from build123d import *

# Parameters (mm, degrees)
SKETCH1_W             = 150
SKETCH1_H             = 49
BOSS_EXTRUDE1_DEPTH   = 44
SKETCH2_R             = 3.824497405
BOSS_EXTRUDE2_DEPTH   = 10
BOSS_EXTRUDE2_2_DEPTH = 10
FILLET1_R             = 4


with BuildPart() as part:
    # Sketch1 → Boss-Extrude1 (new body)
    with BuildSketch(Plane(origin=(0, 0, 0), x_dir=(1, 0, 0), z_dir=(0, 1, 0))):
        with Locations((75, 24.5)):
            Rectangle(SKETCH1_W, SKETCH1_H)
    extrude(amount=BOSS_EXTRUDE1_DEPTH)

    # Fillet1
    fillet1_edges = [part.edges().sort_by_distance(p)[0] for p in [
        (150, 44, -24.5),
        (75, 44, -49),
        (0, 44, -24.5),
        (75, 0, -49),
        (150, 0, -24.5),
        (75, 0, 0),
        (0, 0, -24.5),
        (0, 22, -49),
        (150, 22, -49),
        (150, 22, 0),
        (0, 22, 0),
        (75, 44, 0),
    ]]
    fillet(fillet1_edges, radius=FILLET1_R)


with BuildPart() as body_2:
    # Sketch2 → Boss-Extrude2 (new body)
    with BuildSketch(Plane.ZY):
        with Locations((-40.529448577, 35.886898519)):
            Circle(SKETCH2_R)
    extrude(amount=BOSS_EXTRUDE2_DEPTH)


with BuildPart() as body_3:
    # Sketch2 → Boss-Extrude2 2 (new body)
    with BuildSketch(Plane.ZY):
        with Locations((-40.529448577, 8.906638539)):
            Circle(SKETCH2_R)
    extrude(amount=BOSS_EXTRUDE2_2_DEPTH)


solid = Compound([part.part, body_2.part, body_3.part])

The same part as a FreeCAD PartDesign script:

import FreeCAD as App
import Part
import Sketcher

V = App.Vector

doc = App.newDocument("Part")
body = doc.addObject("PartDesign::Body", "Body")

sketch1 = body.newObject("Sketcher::SketchObject", "Sketch")
sketch1.AttachmentSupport = (doc.getObject("XZ_Plane"), [""])
sketch1.MapMode = "FlatFace"
sketch1.addGeometry(Part.LineSegment(V(0, -49, 0), V(0, 0, 0)), False)
sketch1.addGeometry(Part.LineSegment(V(0, 0, 0), V(150, 0, 0)), False)
sketch1.addGeometry(Part.LineSegment(V(150, 0, 0), V(150, -49, 0)), False)
sketch1.addGeometry(Part.LineSegment(V(150, -49, 0), V(0, -49, 0)), False)
sketch1.addConstraint(Sketcher.Constraint("Coincident", 0, 2, 1, 1))
sketch1.addConstraint(Sketcher.Constraint("Coincident", 1, 2, 2, 1))
sketch1.addConstraint(Sketcher.Constraint("Coincident", 2, 2, 3, 1))
sketch1.addConstraint(Sketcher.Constraint("Coincident", 3, 2, 0, 1))
sketch1.addConstraint(Sketcher.Constraint("Vertical", 0))
sketch1.addConstraint(Sketcher.Constraint("Horizontal", 1))
sketch1.addConstraint(Sketcher.Constraint("Vertical", 2))
sketch1.addConstraint(Sketcher.Constraint("Horizontal", 3))
sketch1.addConstraint(Sketcher.Constraint("Coincident", 0, 2, -1, 1))
sketch1.addConstraint(Sketcher.Constraint("DistanceX", 1, 1, 1, 2, 150.0))
sketch1.addConstraint(Sketcher.Constraint("DistanceY", 0, 1, 0, 2, 49.0))
pad1 = body.newObject("PartDesign::Pad", "Pad")
pad1.Profile = sketch1
pad1.Length = 44
pad1.Reversed = True
doc.recompute()

fillet = body.newObject("PartDesign::Fillet", "Fillet")
fillet.Base = (pad1, ["Edge1"])
fillet.UseAllEdges = True
fillet.Radius = 4
body2 = doc.addObject("PartDesign::Body", "Body001")

sketch2 = body2.newObject("Sketcher::SketchObject", "Sketch001")
sketch2.AttachmentSupport = (doc.getObject("YZ_Plane001"), [""])
sketch2.MapMode = "FlatFace"
sketch2.addGeometry(Part.Circle(V(35.886899, -40.529449, 0), V(0, 0, 1), 3.824497), False)
sketch2.addConstraint(Sketcher.Constraint("Diameter", 0, 7.648995))
sketch2.addConstraint(Sketcher.Constraint("DistanceX", -1, 1, 0, 3, 35.886899))
sketch2.addConstraint(Sketcher.Constraint("DistanceY", 0, 3, -1, 1, 40.529449))
pad2 = body2.newObject("PartDesign::Pad", "Pad001")
pad2.Profile = sketch2
pad2.Length = 10
pad2.Reversed = True
body3 = doc.addObject("PartDesign::Body", "Body002")

sketch3 = body3.newObject("Sketcher::SketchObject", "Sketch002")
sketch3.AttachmentSupport = (doc.getObject("YZ_Plane002"), [""])
sketch3.MapMode = "FlatFace"
sketch3.addGeometry(Part.Circle(V(8.906639, -40.529449, 0), V(0, 0, 1), 3.824497), False)
sketch3.addConstraint(Sketcher.Constraint("Diameter", 0, 7.648995))
sketch3.addConstraint(Sketcher.Constraint("DistanceX", -1, 1, 0, 3, 8.906639))
sketch3.addConstraint(Sketcher.Constraint("DistanceY", 0, 3, -1, 1, 40.529449))
pad3 = body3.newObject("PartDesign::Pad", "Pad002")
pad3.Profile = sketch3
pad3.Length = 10
pad3.Reversed = True

doc.recompute()
